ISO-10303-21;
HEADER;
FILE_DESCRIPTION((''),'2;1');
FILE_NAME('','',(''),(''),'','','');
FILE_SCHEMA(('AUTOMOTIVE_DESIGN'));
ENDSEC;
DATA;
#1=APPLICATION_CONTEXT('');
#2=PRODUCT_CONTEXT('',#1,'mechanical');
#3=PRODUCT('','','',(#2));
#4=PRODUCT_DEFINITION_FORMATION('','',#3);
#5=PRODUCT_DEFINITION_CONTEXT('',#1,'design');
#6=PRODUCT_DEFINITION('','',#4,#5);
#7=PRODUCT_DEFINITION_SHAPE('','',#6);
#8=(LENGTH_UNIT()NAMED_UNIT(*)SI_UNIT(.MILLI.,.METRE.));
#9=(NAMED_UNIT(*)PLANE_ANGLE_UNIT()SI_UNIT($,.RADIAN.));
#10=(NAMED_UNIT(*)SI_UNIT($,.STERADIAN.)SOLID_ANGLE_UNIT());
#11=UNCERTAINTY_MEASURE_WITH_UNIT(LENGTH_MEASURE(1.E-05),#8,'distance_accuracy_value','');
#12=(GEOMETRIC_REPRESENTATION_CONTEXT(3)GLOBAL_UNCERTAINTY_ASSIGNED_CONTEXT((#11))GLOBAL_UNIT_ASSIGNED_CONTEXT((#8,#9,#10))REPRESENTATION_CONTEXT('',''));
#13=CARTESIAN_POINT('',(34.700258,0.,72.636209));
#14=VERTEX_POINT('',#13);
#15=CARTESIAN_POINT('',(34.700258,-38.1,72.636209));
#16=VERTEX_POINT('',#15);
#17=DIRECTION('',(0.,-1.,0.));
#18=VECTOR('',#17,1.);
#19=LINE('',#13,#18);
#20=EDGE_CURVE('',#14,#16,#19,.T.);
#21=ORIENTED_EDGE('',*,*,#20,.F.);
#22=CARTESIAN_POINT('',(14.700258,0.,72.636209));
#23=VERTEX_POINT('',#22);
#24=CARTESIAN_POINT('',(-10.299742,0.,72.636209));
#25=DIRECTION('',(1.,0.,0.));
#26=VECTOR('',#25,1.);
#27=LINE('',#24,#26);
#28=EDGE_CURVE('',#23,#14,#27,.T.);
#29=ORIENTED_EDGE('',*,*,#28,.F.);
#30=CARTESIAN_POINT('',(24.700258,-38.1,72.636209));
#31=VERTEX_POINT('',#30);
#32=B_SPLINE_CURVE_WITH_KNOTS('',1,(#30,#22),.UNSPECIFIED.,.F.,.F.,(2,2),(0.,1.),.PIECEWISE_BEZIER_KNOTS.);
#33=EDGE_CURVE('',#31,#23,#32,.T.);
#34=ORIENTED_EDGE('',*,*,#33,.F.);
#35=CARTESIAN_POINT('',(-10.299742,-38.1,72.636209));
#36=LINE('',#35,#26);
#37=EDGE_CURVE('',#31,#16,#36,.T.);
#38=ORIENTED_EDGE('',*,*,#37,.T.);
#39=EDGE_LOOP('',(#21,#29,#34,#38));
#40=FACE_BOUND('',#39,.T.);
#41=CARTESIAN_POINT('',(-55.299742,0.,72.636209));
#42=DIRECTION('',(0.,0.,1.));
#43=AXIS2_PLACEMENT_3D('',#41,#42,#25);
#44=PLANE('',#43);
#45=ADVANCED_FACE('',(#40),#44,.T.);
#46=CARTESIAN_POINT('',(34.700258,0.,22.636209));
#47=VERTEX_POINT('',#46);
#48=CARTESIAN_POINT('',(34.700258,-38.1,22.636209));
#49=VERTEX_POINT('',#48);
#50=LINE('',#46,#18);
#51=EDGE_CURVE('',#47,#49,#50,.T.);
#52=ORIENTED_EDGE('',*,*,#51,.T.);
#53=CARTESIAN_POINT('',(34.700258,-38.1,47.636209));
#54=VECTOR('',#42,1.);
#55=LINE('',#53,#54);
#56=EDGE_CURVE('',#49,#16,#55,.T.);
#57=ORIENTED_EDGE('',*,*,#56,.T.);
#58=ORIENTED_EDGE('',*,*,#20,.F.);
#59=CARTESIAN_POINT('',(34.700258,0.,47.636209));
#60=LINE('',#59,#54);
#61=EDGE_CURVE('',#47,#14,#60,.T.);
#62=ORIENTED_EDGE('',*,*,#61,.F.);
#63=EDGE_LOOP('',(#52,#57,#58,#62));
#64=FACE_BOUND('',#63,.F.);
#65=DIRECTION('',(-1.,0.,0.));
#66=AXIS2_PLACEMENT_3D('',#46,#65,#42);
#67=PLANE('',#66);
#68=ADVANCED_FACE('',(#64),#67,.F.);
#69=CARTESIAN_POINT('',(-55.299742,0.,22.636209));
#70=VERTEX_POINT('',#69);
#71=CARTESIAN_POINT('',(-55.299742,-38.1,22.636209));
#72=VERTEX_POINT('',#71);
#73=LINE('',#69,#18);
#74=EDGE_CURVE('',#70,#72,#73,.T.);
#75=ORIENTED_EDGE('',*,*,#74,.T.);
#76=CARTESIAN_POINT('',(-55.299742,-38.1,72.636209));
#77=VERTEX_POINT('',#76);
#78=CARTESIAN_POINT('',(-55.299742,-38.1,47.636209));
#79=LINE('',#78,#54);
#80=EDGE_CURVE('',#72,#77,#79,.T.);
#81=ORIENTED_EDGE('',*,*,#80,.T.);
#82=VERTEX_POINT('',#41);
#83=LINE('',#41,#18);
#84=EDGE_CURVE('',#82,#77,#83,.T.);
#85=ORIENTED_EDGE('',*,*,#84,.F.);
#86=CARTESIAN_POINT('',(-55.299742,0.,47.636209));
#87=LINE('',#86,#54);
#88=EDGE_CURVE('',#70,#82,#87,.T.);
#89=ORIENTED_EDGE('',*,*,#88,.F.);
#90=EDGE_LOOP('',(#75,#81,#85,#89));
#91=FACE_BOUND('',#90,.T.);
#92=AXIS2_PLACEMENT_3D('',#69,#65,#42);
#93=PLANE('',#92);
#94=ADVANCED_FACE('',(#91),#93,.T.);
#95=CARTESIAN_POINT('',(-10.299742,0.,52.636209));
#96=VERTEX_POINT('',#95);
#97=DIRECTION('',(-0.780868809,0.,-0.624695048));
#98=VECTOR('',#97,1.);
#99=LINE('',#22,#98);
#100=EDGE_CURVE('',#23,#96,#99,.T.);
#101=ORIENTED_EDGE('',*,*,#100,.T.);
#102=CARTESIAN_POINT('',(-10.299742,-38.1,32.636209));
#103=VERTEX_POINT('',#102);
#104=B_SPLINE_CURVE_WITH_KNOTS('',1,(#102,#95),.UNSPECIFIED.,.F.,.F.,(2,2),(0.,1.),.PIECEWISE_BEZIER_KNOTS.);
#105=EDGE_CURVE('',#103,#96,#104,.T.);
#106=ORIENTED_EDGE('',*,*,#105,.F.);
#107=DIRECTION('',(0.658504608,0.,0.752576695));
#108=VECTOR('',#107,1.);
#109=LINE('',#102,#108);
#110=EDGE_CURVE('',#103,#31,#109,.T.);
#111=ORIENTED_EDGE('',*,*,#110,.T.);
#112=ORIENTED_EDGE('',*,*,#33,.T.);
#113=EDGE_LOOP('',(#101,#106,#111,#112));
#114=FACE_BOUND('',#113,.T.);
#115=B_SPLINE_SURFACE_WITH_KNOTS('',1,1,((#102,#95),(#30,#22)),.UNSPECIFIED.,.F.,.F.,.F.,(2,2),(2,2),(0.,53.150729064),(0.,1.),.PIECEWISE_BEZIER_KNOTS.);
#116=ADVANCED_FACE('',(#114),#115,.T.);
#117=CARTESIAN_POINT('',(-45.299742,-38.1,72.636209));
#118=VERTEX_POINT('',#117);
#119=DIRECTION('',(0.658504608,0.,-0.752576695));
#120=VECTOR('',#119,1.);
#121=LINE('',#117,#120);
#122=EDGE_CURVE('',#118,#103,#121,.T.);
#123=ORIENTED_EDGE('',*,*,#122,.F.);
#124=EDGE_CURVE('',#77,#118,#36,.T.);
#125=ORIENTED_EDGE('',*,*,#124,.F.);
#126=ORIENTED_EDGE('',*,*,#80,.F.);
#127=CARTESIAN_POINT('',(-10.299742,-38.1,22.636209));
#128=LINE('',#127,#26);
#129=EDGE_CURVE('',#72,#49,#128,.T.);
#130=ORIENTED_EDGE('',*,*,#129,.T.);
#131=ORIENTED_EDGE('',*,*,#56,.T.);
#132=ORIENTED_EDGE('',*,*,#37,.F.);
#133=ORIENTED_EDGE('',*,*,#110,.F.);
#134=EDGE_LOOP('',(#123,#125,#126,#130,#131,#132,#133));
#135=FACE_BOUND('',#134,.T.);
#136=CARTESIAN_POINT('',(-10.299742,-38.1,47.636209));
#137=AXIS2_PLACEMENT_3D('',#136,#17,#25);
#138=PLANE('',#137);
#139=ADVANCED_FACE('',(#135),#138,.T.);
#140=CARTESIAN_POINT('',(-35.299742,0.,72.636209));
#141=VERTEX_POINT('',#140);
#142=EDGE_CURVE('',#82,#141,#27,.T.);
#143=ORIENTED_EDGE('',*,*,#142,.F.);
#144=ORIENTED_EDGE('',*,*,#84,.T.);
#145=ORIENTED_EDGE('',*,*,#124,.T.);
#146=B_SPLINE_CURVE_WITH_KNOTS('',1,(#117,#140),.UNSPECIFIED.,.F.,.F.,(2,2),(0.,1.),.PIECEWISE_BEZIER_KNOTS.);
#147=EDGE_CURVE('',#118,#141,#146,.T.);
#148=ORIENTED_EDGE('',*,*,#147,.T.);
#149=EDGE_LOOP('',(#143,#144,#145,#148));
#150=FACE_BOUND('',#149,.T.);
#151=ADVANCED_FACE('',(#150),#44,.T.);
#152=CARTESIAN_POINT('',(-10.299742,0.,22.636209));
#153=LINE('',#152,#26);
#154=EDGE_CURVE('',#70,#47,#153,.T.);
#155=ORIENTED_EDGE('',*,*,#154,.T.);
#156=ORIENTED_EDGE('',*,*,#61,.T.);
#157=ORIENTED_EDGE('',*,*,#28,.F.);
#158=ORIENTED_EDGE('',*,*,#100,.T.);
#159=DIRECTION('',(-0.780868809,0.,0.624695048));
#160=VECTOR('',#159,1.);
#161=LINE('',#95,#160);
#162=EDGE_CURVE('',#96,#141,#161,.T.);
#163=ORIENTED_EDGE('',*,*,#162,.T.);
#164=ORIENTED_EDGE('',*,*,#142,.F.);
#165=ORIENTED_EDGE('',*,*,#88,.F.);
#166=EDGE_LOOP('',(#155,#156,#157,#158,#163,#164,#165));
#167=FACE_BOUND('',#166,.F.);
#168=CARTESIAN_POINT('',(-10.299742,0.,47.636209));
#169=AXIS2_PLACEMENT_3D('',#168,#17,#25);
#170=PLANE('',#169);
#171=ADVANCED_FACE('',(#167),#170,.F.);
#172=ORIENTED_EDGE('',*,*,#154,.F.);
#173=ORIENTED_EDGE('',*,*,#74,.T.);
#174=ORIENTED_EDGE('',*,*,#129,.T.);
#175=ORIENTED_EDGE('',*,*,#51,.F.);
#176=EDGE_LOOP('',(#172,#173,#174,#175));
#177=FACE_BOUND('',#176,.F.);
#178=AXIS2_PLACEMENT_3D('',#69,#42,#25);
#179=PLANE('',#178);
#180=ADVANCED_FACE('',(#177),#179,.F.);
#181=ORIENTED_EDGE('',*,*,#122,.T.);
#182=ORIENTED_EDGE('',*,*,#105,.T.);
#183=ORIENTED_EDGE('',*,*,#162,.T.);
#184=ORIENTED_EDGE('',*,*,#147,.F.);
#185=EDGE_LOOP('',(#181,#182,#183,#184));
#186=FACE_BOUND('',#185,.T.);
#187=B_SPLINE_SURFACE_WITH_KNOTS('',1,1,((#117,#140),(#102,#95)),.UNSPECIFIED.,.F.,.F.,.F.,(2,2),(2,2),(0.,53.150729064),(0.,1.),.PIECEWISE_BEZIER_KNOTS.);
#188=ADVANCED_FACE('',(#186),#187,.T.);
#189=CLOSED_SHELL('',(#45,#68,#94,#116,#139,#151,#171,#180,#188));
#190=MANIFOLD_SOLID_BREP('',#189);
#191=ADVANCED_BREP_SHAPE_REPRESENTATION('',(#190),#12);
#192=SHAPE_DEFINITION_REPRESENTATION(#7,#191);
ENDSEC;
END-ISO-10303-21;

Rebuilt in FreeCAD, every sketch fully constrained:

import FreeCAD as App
import Part
import Sketcher
from FreeCAD import Vector
Q = App.Units.Quantity


def add_polygon(sketch, points):
    """Adds a closed chain of lines whose ends are joined by coincident constraints."""
    first, n = sketch.GeometryCount, len(points)
    for a, b in zip(points, points[1:] + points[:1]):
        sketch.addGeometry(Part.LineSegment(App.Vector(*a, 0), App.Vector(*b, 0)), False)
    for i in range(n):
        sketch.addConstraint(Sketcher.Constraint("Coincident", first + i, 2, first + (i + 1) % n, 1))

doc = App.newDocument("Part")
params = doc.addObject("Spreadsheet::Sheet", "Params")
for row, (alias, value) in enumerate([
    ("sketch1_width", "90 mm"),
    ("sketch1_height", "50 mm"),
    ("pad1_length", "38.1 mm"),
    ("sketch2_width", "70 mm"),
    ("sketch3_width", "50 mm"),
], start=1):
    params.set(f"A{row}", alias)
    params.set(f"B{row}", "=" + value)
    params.setAlias(f"B{row}", alias)

body = doc.addObject("PartDesign::Body", "Body")

sketch1 = body.newObject("Sketcher::SketchObject", "Sketch")
sketch1.AttachmentSupport = (doc.getObject("XZ_Plane"), [""])
sketch1.MapMode = "FlatFace"
add_polygon(sketch1, [(-55, 73), (-55, 23), (35, 23), (35, 73)])
sketch1.addConstraint(Sketcher.Constraint("Vertical", 0))
sketch1.addConstraint(Sketcher.Constraint("Horizontal", 1))
sketch1.addConstraint(Sketcher.Constraint("Vertical", 2))
sketch1.addConstraint(Sketcher.Constraint("Horizontal", 3))
sketch1.addConstraint(Sketcher.Constraint("DistanceX", 1, 1, 1, 2, Q("90 mm")))
sketch1.addConstraint(Sketcher.Constraint("DistanceY", 0, 2, 0, 1, Q("50 mm")))
sketch1.addConstraint(Sketcher.Constraint("DistanceY", -1, 1, 0, 2, Q("22.636209 mm")))
sketch1.addConstraint(Sketcher.Constraint("DistanceX", 0, 2, -1, 1, Q("55.299742 mm")))
sketch1.setExpression("Constraints[8]", "Params.sketch1_width")
sketch1.setExpression("Constraints[9]", "Params.sketch1_height")
pad1 = body.newObject("PartDesign::Pad", "Pad")
pad1.Profile = sketch1
pad1.setExpression("Length", "Params.pad1_length")

sketch2 = body.newObject("Sketcher::SketchObject", "Sketch001")
sketch2.AttachmentSupport = (doc.getObject("XZ_Plane"), [""])
sketch2.MapMode = "FlatFace"
sketch2.AttachmentOffset = App.Placement(Vector(0, 0, 38.1), App.Rotation())
add_polygon(sketch2, [(25, 73), (-45, 73), (-10, 33)])
sketch2.addConstraint(Sketcher.Constraint("Horizontal", 0))
sketch2.addConstraint(Sketcher.Constraint("Equal", 1, 2))
sketch2.addConstraint(Sketcher.Constraint("DistanceX", 0, 2, 0, 1, Q("70 mm")))
sketch2.addConstraint(Sketcher.Constraint("DistanceY", 1, 2, 0, 2, Q("40 mm")))
sketch2.addConstraint(Sketcher.Constraint("DistanceY", -1, 1, 0, 2, Q("72.636209 mm")))
sketch2.addConstraint(Sketcher.Constraint("DistanceX", -1, 1, 2, 2, Q("24.700258 mm")))
sketch2.setExpression("Constraints[5]", "Params.sketch2_width")

sketch3 = body.newObject("Sketcher::SketchObject", "Sketch002")
sketch3.AttachmentSupport = (doc.getObject("XZ_Plane"), [""])
sketch3.MapMode = "FlatFace"
add_polygon(sketch3, [(-35, 73), (15, 73), (-10, 53)])
sketch3.addConstraint(Sketcher.Constraint("Horizontal", 0))
sketch3.addConstraint(Sketcher.Constraint("Equal", 1, 2))
sketch3.addConstraint(Sketcher.Constraint("DistanceX", 0, 1, 0, 2, Q("50 mm")))
sketch3.addConstraint(Sketcher.Constraint("DistanceY", 1, 2, 0, 2, Q("20 mm")))
sketch3.addConstraint(Sketcher.Constraint("DistanceY", -1, 1, 0, 2, Q("72.636209 mm")))
sketch3.addConstraint(Sketcher.Constraint("DistanceX", -1, 1, 0, 2, Q("14.700258 mm")))
sketch3.setExpression("Constraints[5]", "Params.sketch3_width")

subtractiveloft = body.newObject("PartDesign::SubtractiveLoft", "SubtractiveLoft")
subtractiveloft.Profile = sketch2
subtractiveloft.Sections = [sketch3]

doc.recompute()
